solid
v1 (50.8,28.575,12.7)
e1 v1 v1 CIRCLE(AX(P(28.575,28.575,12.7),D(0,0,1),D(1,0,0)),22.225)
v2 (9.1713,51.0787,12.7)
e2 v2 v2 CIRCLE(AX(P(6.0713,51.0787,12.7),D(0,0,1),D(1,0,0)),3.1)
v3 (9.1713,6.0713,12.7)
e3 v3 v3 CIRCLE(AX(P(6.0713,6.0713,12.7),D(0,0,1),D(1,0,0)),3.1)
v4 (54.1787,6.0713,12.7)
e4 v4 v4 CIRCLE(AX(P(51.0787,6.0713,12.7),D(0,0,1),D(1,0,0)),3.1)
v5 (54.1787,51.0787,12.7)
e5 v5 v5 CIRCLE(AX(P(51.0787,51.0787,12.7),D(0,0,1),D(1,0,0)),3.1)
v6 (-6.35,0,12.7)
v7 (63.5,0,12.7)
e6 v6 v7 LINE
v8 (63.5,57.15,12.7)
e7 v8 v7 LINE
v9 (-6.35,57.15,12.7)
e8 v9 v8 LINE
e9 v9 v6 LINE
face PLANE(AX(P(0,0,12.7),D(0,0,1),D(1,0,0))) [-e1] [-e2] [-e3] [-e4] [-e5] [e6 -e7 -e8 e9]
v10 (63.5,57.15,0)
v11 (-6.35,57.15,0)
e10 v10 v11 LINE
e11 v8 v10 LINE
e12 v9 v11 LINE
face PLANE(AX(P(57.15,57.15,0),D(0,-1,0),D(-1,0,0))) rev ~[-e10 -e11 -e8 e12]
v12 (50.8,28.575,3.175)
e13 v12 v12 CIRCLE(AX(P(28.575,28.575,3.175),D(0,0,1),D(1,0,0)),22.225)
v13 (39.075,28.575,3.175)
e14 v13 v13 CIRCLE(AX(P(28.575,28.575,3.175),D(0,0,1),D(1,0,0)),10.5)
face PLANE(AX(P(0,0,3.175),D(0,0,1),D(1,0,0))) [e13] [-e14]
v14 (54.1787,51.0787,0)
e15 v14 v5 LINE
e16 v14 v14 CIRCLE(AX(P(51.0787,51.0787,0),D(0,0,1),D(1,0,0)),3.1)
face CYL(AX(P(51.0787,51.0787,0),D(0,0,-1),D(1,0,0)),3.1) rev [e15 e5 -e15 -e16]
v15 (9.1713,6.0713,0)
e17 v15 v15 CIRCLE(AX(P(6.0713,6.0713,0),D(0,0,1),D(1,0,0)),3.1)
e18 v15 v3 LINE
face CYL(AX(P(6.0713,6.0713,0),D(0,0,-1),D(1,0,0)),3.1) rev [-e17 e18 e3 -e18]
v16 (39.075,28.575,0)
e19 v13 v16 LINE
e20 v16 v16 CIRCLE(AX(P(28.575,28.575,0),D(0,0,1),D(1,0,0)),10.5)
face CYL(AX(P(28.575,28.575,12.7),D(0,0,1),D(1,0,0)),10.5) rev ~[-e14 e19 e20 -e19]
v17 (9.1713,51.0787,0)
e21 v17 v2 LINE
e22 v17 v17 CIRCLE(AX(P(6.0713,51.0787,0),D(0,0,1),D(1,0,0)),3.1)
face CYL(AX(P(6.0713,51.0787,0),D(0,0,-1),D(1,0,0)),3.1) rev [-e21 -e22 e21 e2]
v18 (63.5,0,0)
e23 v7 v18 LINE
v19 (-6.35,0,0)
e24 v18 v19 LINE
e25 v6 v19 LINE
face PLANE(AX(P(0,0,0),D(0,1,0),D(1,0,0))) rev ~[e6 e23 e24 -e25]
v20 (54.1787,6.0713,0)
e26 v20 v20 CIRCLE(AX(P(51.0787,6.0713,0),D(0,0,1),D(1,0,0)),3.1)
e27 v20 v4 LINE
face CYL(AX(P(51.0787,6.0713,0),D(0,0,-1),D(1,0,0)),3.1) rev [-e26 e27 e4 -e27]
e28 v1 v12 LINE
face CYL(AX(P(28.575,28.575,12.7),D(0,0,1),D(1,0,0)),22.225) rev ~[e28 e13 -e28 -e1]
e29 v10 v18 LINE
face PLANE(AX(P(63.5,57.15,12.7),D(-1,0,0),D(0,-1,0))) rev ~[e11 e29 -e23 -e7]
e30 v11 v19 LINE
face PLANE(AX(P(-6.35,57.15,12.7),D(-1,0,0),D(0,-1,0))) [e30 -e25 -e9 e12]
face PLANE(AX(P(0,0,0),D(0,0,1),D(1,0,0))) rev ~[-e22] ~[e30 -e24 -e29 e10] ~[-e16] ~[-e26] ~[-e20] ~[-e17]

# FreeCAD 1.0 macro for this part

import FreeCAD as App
import Part
import Sketcher
from FreeCAD import Vector
Q = App.Units.Quantity


def add_polygon(sketch, points):
    """Adds a closed chain of lines whose ends are joined by coincident constraints."""
    first, n = sketch.GeometryCount, len(points)
    for a, b in zip(points, points[1:] + points[:1]):
        sketch.addGeometry(Part.LineSegment(App.Vector(*a, 0), App.Vector(*b, 0)), False)
    for i in range(n):
        sketch.addConstraint(Sketcher.Constraint("Coincident", first + i, 2, first + (i + 1) % n, 1))

doc = App.newDocument("Part")
body = doc.addObject("PartDesign::Body", "Body")

sketch1 = body.newObject("Sketcher::SketchObject", "Sketch")
sketch1.AttachmentSupport = (doc.getObject("XY_Plane"), [""])
sketch1.MapMode = "FlatFace"
add_polygon(sketch1, [(0, 57.1), (0, 0), (57.1, 0), (57.1, 57.1)])
sketch1.addGeometry(Part.Circle(Vector(6.1, 6.1, 0), Vector(0, 0, 1), 3.1), False)
sketch1.addGeometry(Part.Circle(Vector(51.1, 6.1, 0), Vector(0, 0, 1), 3.1), False)
sketch1.addGeometry(Part.Circle(Vector(6.1, 51.1, 0), Vector(0, 0, 1), 3.1), False)
sketch1.addGeometry(Part.Circle(Vector(51.1, 51.1, 0), Vector(0, 0, 1), 3.1), False)
sketch1.addConstraint(Sketcher.Constraint("Vertical", 0))
sketch1.addConstraint(Sketcher.Constraint("Horizontal", 1))
sketch1.addConstraint(Sketcher.Constraint("Vertical", 2))
sketch1.addConstraint(Sketcher.Constraint("Horizontal", 3))
sketch1.addConstraint(Sketcher.Constraint("Coincident", 0, 2, -1, 1))
sketch1.addConstraint(Sketcher.Constraint("Equal", 4, 5))
sketch1.addConstraint(Sketcher.Constraint("Equal", 5, 6))
sketch1.addConstraint(Sketcher.Constraint("Equal", 6, 7))
sketch1.addConstraint(Sketcher.Constraint("Horizontal", 4, 3, 5, 3))
sketch1.addConstraint(Sketcher.Constraint("Horizontal", 6, 3, 7, 3))
sketch1.addConstraint(Sketcher.Constraint("Vertical", 4, 3, 6, 3))
sketch1.addConstraint(Sketcher.Constraint("Vertical", 5, 3, 7, 3))
sketch1.addConstraint(Sketcher.Constraint("Equal", 3, 0))
sketch1.addConstraint(Sketcher.Constraint("Diameter", 4, Q("0.2441 in")))
sketch1.addConstraint(Sketcher.Constraint("DistanceX", 1, 1, 1, 2, Q("2.25 in")))
sketch1.addConstraint(Sketcher.Constraint("DistanceX", -1, 1, 4, 3, 6.0713))
sketch1.addConstraint(Sketcher.Constraint("DistanceY", -1, 1, 4, 3, 6.0713))
sketch1.addConstraint(Sketcher.Constraint("DistanceX", -1, 1, 5, 3, 51.0787))
sketch1.addConstraint(Sketcher.Constraint("DistanceY", -1, 1, 6, 3, 51.0787))
pad1 = body.newObject("PartDesign::Pad", "Pad")
pad1.Profile = sketch1
pad1.Length = Q("0.5 in")

sketch2 = body.newObject("Sketcher::SketchObject", "Sketch001")
sketch2.AttachmentSupport = (doc.getObject("XY_Plane"), [""])
sketch2.MapMode = "FlatFace"
sketch2.AttachmentOffset = App.Placement(Vector(0, 0, 0.5 * 25.4), App.Rotation())
sketch2.addGeometry(Part.Circle(Vector(29, 29, 0), Vector(0, 0, 1), 10), False)
sketch2.addConstraint(Sketcher.Constraint("Diameter", 0, 21.0))
sketch2.addConstraint(Sketcher.Constraint("DistanceX", -1, 1, 0, 3, Q("1.125 in")))
sketch2.addConstraint(Sketcher.Constraint("DistanceY", -1, 1, 0, 3, Q("1.125 in")))
pocket1 = body.newObject("PartDesign::Pocket", "Pocket")
pocket1.Profile = sketch2
pocket1.Length = Q("1 in")

sketch3 = body.newObject("Sketcher::SketchObject", "Sketch002")
sketch3.AttachmentSupport = (doc.getObject("XY_Plane"), [""])
sketch3.MapMode = "FlatFace"
sketch3.AttachmentOffset = App.Placement(Vector(0, 0, 0.5 * 25.4), App.Rotation())
sketch3.addGeometry(Part.Circle(Vector(29, 29, 0), Vector(0, 0, 1), 22), False)
sketch3.addGeometry(Part.Circle(Vector(29, 29, 0), Vector(0, 0, 1), 10), False)
sketch3.addConstraint(Sketcher.Constraint("Coincident", 1, 3, 0, 3))
sketch3.addConstraint(Sketcher.Constraint("Diameter", 0, Q("1.75 in")))
sketch3.addConstraint(Sketcher.Constraint("Diameter", 1, 21.0))
sketch3.addConstraint(Sketcher.Constraint("DistanceX", -1, 1, 0, 3, Q("1.125 in")))
sketch3.addConstraint(Sketcher.Constraint("DistanceY", -1, 1, 0, 3, Q("1.125 in")))
pocket2 = body.newObject("PartDesign::Pocket", "Pocket001")
pocket2.Profile = sketch3
pocket2.Length = Q("0.375 in")

sketch4 = body.newObject("Sketcher::SketchObject", "Sketch003")
sketch4.AttachmentSupport = (doc.getObject("XY_Plane"), [""])
sketch4.MapMode = "FlatFace"
sketch4.AttachmentOffset = App.Placement(Vector(0, 0, 0.5 * 25.4), App.Rotation())
add_polygon(sketch4, [(0, 0), (0, 57), (-6, 57), (-6, 0)])
add_polygon(sketch4, [(57, 57), (57, 0), (64, 0), (64, 57)])
sketch4.addConstraint(Sketcher.Constraint("Vertical", 0))
sketch4.addConstraint(Sketcher.Constraint("Horizontal", 1))
sketch4.addConstraint(Sketcher.Constraint("Vertical", 2))
sketch4.addConstraint(Sketcher.Constraint("Horizontal", 3))
sketch4.addConstraint(Sketcher.Constraint("Vertical", 4))
sketch4.addConstraint(Sketcher.Constraint("Horizontal", 5))
sketch4.addConstraint(Sketcher.Constraint("Vertical", 6))
sketch4.addConstraint(Sketcher.Constraint("Horizontal", 7))
sketch4.addConstraint(Sketcher.Constraint("Coincident", 3, 2, -1, 1))
sketch4.addConstraint(Sketcher.Constraint("PointOnObject", 4, 2, -1))
sketch4.addConstraint(Sketcher.Constraint("Horizontal", 1, 2, 6, 2))
sketch4.addConstraint(Sketcher.Constraint("Equal", 3, 5))
sketch4.addConstraint(Sketcher.Constraint("DistanceX", 1, 2, 1, 1, Q("0.25 in")))
sketch4.addConstraint(Sketcher.Constraint("DistanceY", 0, 1, 0, 2, Q("2.25 in")))
sketch4.addConstraint(Sketcher.Constraint("DistanceX", -1, 1, 5, 2, Q("2.5 in")))
pad2 = body.newObject("PartDesign::Pad", "Pad001")
pad2.Profile = sketch4
pad2.Length = Q("0.5 in")
pad2.Reversed = True

doc.recompute()
